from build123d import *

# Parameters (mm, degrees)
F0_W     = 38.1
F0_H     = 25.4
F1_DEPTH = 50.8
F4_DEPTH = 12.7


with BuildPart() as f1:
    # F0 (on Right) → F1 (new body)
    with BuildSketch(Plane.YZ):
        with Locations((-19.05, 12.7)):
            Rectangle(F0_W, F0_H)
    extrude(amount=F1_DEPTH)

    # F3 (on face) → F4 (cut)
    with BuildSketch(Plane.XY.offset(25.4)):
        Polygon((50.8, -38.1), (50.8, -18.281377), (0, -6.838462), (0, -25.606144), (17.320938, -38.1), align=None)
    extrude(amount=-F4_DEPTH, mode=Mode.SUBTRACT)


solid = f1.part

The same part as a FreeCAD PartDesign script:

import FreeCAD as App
import Part
import Sketcher

V = App.Vector
Q = App.Units.Quantity

doc = App.newDocument("Part")
params = doc.addObject("Spreadsheet::Sheet", "Params")
for row, (alias, value) in enumerate([
    ("sketch1_height", "1 in"),
    ("sketch1_width", "1.5 in"),
    ("pad1_length", "2 in"),
    ("pocket1_length", "0.5 in"),
], start=1):
    params.set(f"A{row}", alias)
    params.set(f"B{row}", "=" + value)
    params.setAlias(f"B{row}", alias)

body = doc.addObject("PartDesign::Body", "Body")

# Sketch on YZ plane
sketch1 = body.newObject("Sketcher::SketchObject", "Sketch")
sketch1.AttachmentSupport = (doc.getObject("YZ_Plane"), [""])
sketch1.MapMode = "FlatFace"
sketch1.addGeometry(Part.LineSegment(V(-38, 25, 0), V(-38, 0, 0)), False)
sketch1.addGeometry(Part.LineSegment(V(-38, 0, 0), V(0, 0, 0)), False)
sketch1.addGeometry(Part.LineSegment(V(0, 0, 0), V(0, 25, 0)), False)
sketch1.addGeometry(Part.LineSegment(V(0, 25, 0), V(-38, 25, 0)), False)
sketch1.addConstraint(Sketcher.Constraint("Coincident", 0, 2, 1, 1))
sketch1.addConstraint(Sketcher.Constraint("Coincident", 1, 2, 2, 1))
sketch1.addConstraint(Sketcher.Constraint("Coincident", 2, 2, 3, 1))
sketch1.addConstraint(Sketcher.Constraint("Coincident", 3, 2, 0, 1))
sketch1.addConstraint(Sketcher.Constraint("Vertical", 0))
sketch1.addConstraint(Sketcher.Constraint("Horizontal", 1))
sketch1.addConstraint(Sketcher.Constraint("Vertical", 2))
sketch1.addConstraint(Sketcher.Constraint("Horizontal", 3))
sketch1.addConstraint(Sketcher.Constraint("Coincident", 1, 2, -1, 1))
sketch1.addConstraint(Sketcher.Constraint("DistanceY", 0, 2, 0, 1, Q("1 in")))
sketch1.addConstraint(Sketcher.Constraint("DistanceX", 1, 1, 1, 2, Q("1.5 in")))
sketch1.setExpression("Constraints[9]", "Params.sketch1_height")
sketch1.setExpression("Constraints[10]", "Params.sketch1_width")
pad1 = body.newObject("PartDesign::Pad", "Pad")
pad1.Profile = sketch1
pad1.setExpression("Length", "Params.pad1_length")

# Sketch on XY plane
sketch2 = body.newObject("Sketcher::SketchObject", "Sketch001")
sketch2.AttachmentSupport = (doc.getObject("XY_Plane"), [""])
sketch2.MapMode = "FlatFace"
sketch2.AttachmentOffset = App.Placement(V(0, 0, 1 * 25.4), App.Rotation())
sketch2.addGeometry(Part.LineSegment(V(51, -38, 0), V(51, -18, 0)), False)
sketch2.addGeometry(Part.LineSegment(V(51, -18, 0), V(0, -7, 0)), False)
sketch2.addGeometry(Part.LineSegment(V(0, -7, 0), V(0, -26, 0)), False)
sketch2.addGeometry(Part.LineSegment(V(0, -26, 0), V(17, -38, 0)), False)
sketch2.addGeometry(Part.LineSegment(V(17, -38, 0), V(51, -38, 0)), False)
sketch2.addConstraint(Sketcher.Constraint("Coincident", 0, 2, 1, 1))
sketch2.addConstraint(Sketcher.Constraint("Coincident", 1, 2, 2, 1))
sketch2.addConstraint(Sketcher.Constraint("Coincident", 2, 2, 3, 1))
sketch2.addConstraint(Sketcher.Constraint("Coincident", 3, 2, 4, 1))
sketch2.addConstraint(Sketcher.Constraint("Coincident", 4, 2, 0, 1))
sketch2.addConstraint(Sketcher.Constraint("Vertical", 0))
sketch2.addConstraint(Sketcher.Constraint("Vertical", 2))
sketch2.addConstraint(Sketcher.Constraint("Horizontal", 4))
sketch2.addConstraint(Sketcher.Constraint("PointOnObject", 1, 2, -2))
sketch2.addConstraint(Sketcher.Constraint("DistanceX", -1, 1, 0, 2, Q("2 in")))
sketch2.addConstraint(Sketcher.Constraint("DistanceY", 3, 2, -1, 1, Q("1.5 in")))
sketch2.addConstraint(Sketcher.Constraint("DistanceX", 4, 1, 4, 2, Q("33.479062 mm")))
sketch2.addConstraint(Sketcher.Constraint("DistanceY", 0, 1, 0, 2, Q("19.818623 mm")))
sketch2.addConstraint(Sketcher.Constraint("DistanceY", 2, 2, 2, 1, Q("18.767682 mm")))
sketch2.addConstraint(Sketcher.Constraint("DistanceY", 1, 2, -1, 1, Q("6.838462 mm")))
pocket1 = body.newObject("PartDesign::Pocket", "Pocket")
pocket1.Profile = sketch2
pocket1.setExpression("Length", "Params.pocket1_length")

doc.recompute()
